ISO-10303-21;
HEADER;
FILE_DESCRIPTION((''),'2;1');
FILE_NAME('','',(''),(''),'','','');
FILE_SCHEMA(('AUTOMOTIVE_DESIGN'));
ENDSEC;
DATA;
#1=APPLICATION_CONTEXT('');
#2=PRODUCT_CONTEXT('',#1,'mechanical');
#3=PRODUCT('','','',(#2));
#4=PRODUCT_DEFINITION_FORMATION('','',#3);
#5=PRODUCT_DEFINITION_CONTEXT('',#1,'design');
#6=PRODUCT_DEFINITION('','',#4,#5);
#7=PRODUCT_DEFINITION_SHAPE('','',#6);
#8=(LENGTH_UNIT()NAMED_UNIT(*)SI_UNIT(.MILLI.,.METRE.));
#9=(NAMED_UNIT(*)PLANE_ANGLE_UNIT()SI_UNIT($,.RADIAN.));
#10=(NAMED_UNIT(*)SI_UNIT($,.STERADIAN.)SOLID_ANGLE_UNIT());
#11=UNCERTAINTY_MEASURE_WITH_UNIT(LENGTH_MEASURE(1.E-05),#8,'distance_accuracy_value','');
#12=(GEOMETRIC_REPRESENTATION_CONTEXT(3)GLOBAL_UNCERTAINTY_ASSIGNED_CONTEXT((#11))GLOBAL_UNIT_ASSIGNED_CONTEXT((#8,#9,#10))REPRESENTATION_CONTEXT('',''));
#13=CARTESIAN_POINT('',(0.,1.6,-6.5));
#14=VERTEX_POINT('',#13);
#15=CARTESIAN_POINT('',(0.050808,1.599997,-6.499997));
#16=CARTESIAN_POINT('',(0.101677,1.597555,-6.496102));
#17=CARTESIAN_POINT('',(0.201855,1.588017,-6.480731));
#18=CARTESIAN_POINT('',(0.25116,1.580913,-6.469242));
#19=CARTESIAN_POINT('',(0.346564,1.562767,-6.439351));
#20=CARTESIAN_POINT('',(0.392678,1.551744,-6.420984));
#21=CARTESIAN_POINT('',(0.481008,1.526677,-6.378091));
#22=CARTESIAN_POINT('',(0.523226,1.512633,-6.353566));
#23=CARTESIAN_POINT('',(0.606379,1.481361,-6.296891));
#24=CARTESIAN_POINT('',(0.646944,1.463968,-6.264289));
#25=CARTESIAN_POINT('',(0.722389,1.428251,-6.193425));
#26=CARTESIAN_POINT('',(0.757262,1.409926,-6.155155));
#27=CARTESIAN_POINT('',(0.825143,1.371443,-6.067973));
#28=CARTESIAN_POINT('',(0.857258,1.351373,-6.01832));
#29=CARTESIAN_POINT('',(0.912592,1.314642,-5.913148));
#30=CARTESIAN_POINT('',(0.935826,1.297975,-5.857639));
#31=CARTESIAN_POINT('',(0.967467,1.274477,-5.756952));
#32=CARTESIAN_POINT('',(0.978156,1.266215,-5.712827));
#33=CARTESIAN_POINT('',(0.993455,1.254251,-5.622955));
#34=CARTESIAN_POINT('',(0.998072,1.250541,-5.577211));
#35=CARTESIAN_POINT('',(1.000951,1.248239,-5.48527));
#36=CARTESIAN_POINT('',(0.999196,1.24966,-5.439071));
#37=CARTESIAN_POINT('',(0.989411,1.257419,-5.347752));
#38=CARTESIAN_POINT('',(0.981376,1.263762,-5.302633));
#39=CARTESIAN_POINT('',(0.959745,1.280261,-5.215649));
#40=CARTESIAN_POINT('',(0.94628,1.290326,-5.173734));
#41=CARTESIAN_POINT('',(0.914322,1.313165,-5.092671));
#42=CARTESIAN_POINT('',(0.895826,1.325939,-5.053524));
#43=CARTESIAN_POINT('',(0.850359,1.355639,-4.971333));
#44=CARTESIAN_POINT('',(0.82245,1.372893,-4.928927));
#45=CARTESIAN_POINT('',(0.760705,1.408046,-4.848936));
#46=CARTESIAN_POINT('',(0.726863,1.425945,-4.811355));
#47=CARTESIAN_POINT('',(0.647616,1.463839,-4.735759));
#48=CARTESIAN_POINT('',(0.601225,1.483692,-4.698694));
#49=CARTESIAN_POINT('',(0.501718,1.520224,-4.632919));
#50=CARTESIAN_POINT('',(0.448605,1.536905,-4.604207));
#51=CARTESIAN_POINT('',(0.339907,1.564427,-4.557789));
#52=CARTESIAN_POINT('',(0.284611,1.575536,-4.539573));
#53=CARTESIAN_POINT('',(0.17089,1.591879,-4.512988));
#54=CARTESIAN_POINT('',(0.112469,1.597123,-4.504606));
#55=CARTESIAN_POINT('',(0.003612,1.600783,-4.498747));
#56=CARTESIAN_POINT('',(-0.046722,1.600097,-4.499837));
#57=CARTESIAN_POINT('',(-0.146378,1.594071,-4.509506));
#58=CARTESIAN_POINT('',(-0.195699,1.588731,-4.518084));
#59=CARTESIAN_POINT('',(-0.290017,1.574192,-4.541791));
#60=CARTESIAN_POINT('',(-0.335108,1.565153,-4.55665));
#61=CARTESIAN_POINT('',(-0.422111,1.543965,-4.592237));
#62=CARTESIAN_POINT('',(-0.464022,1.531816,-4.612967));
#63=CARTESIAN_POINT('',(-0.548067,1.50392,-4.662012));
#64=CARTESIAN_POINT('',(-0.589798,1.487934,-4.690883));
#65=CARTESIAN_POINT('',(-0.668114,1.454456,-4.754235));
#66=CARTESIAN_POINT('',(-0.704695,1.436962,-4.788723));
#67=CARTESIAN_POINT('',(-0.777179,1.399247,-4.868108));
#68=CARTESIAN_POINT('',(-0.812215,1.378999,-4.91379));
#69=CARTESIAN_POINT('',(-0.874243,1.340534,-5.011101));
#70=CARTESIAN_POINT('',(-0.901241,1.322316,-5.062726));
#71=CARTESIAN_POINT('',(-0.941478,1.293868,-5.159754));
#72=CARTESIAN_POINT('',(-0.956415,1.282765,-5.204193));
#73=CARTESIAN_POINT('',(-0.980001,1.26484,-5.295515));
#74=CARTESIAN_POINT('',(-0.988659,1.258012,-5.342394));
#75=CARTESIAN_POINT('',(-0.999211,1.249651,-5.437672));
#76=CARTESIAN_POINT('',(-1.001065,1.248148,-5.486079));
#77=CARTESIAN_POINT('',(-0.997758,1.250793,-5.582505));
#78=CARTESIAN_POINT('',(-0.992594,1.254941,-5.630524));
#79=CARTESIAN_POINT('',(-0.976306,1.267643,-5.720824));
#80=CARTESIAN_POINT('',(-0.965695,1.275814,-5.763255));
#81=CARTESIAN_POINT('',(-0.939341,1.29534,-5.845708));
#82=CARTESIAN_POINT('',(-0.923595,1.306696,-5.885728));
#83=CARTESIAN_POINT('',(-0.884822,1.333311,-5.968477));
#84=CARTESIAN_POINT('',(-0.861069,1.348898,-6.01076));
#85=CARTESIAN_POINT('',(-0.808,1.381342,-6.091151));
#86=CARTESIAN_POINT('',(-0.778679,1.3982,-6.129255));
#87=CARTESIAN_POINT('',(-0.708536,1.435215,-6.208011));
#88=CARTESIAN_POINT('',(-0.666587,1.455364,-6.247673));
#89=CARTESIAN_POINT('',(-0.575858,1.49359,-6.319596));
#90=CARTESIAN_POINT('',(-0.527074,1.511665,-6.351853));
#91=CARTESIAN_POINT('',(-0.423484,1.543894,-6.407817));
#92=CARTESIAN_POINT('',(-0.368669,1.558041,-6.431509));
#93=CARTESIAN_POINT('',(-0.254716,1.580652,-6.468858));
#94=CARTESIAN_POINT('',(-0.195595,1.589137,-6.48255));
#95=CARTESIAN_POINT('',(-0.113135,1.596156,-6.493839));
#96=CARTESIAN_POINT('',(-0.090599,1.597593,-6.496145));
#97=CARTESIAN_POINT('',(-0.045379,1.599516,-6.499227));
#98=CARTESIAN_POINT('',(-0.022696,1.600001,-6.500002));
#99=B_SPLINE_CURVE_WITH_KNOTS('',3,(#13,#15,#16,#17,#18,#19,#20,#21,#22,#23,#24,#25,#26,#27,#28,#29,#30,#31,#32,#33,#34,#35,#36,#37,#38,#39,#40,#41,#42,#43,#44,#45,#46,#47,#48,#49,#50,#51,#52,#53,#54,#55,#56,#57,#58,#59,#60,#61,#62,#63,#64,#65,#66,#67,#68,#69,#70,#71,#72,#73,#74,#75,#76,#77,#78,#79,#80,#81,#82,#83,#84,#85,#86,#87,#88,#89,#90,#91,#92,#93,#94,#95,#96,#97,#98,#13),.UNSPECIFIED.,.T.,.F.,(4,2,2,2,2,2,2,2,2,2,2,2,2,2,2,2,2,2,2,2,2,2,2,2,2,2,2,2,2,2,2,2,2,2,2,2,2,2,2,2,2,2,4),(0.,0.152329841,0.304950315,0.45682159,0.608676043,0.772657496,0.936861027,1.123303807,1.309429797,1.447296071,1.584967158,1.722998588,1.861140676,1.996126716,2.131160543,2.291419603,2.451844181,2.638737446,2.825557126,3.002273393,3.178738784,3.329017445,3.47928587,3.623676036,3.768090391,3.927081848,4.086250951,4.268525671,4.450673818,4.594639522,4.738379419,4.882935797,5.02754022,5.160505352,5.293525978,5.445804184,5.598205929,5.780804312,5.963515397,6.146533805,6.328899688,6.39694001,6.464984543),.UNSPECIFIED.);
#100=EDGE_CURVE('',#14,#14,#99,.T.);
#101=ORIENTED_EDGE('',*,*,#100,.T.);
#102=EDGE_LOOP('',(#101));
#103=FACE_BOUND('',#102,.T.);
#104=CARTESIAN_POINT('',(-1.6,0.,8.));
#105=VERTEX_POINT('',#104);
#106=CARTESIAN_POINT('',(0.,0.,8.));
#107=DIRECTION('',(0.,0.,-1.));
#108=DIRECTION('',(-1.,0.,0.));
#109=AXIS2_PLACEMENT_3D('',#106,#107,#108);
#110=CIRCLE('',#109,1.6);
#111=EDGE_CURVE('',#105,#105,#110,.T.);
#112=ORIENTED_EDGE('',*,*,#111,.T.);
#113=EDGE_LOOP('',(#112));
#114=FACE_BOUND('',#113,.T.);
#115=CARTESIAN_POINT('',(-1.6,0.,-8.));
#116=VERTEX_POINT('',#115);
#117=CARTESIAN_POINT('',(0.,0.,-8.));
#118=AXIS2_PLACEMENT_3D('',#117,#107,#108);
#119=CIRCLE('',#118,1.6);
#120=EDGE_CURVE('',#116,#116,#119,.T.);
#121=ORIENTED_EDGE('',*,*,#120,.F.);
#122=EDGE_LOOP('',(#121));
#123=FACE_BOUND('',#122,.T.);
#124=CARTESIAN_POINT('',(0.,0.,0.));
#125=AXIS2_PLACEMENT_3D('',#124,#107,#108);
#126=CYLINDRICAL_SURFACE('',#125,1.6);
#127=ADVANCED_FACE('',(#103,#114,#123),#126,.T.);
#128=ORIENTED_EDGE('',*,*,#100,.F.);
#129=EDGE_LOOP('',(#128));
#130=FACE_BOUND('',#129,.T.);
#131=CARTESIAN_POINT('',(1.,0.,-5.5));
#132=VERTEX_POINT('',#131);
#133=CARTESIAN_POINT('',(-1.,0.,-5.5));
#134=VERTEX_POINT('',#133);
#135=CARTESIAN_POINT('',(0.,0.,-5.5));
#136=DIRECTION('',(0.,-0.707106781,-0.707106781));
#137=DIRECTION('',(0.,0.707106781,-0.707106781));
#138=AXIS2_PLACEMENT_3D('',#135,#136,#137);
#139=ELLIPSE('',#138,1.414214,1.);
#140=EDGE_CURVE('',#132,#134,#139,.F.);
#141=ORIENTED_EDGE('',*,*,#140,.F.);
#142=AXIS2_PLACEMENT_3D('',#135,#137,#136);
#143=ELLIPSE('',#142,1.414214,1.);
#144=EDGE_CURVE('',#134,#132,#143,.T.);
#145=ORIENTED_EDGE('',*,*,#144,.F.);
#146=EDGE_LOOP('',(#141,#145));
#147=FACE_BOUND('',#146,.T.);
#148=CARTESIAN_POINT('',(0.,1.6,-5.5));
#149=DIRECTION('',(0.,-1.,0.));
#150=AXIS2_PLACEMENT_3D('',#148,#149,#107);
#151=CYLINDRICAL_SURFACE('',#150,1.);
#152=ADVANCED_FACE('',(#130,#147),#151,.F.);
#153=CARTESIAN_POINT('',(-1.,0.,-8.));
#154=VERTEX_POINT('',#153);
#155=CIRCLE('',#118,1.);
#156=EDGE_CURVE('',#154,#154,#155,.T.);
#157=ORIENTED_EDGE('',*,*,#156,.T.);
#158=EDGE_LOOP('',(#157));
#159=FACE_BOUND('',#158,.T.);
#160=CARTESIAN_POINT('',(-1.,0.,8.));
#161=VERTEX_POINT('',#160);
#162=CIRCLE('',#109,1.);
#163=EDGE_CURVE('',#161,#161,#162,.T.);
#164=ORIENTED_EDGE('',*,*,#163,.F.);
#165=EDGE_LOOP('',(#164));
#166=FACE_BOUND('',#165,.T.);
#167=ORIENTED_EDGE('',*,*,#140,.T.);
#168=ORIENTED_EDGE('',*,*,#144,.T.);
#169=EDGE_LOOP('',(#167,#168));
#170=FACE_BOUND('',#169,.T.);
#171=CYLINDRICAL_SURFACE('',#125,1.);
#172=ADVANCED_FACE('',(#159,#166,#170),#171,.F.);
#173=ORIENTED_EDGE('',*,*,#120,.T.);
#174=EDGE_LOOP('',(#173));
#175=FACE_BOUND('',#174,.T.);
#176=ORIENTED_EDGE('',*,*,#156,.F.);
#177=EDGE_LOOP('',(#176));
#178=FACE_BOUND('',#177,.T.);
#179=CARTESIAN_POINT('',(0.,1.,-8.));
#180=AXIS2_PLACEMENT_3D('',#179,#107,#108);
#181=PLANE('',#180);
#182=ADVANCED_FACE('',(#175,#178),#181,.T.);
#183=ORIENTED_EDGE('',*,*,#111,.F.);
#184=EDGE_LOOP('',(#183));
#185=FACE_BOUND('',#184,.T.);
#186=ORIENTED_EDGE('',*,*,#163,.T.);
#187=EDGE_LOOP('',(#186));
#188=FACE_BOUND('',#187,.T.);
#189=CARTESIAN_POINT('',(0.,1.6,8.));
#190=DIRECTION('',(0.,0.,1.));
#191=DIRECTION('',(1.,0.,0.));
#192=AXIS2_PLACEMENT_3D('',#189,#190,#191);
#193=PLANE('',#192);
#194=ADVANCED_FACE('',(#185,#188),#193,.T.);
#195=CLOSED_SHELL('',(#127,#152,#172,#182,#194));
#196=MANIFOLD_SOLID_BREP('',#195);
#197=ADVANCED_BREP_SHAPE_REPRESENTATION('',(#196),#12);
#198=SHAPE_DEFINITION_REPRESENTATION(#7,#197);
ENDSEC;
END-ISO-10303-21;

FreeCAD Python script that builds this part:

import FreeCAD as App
import Part
import Sketcher
from FreeCAD import Vector
Q = App.Units.Quantity

doc = App.newDocument("Part")
body = doc.addObject("PartDesign::Body", "Body")

sketch1 = body.newObject("Sketcher::SketchObject", "Sketch")
sketch1.AttachmentSupport = (doc.getObject("YZ_Plane"), [""])
sketch1.MapMode = "FlatFace"
sketch1.addGeometry([
    Part.LineSegment(Vector(1.6, 8, 0), Vector(1, 8, 0)),
    Part.LineSegment(Vector(1, 8, 0), Vector(1, -8, 0)),
    Part.LineSegment(Vector(1, -8, 0), Vector(1.6, -8, 0)),
    Part.LineSegment(Vector(1.6, -8, 0), Vector(1.6, 8, 0)),
], False)
sketch1.addConstraint([
    Sketcher.Constraint("Coincident", 0, 2, 1, 1),
    Sketcher.Constraint("Coincident", 1, 2, 2, 1),
    Sketcher.Constraint("Coincident", 2, 2, 3, 1),
    Sketcher.Constraint("Coincident", 3, 2, 0, 1),
    Sketcher.Constraint("Horizontal", 0),
    Sketcher.Constraint("Vertical", 1),
    Sketcher.Constraint("Horizontal", 2),
    Sketcher.Constraint("Vertical", 3),
    Sketcher.Constraint("DistanceY", 1, 2, 1, 1, Q("16 mm")),
    Sketcher.Constraint("DistanceX", 0, 2, 0, 1, Q("0.6 mm")),
    Sketcher.Constraint("DistanceX", -1, 1, 0, 2, Q("1 mm")),
    Sketcher.Constraint("DistanceY", -1, 1, 0, 2, Q("8 mm")),
])
revolution = body.newObject("PartDesign::Revolution", "Revolution")
revolution.Profile = sketch1
revolution.ReferenceAxis = (sketch1, ["V_Axis"])
revolution.Angle = 360

sketch2 = body.newObject("Sketcher::SketchObject", "Sketch001")
sketch2.AttachmentSupport = (doc.getObject("XZ_Plane"), [""])
sketch2.MapMode = "FlatFace"
sketch2.addGeometry(Part.Circle(Vector(0, -5.5, 0), Vector(0, 0, 1), 1), False)
sketch2.addConstraint([
    Sketcher.Constraint("PointOnObject", 0, 3, -2),
    Sketcher.Constraint("Diameter", 0, Q("2 mm")),
    Sketcher.Constraint("DistanceY", 0, 3, -1, 1, Q("5.5 mm")),
])
pocket1 = body.newObject("PartDesign::Pocket", "Pocket")
pocket1.Profile = sketch2
pocket1.Type = "ThroughAll"

doc.recompute()
